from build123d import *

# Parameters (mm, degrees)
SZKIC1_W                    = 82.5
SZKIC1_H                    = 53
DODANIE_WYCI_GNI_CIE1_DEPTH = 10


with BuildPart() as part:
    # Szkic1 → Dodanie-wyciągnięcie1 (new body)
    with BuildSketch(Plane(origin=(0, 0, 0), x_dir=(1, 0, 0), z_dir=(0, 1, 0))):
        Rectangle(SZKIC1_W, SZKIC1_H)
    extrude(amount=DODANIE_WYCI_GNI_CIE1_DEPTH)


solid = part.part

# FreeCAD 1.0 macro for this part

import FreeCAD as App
import Part
import Sketcher
from FreeCAD import Vector

doc = App.newDocument("Part")
params = doc.addObject("Spreadsheet::Sheet", "Params")
for row, (alias, value) in enumerate([
    ("sketch1_height", "53 mm"),
    ("sketch1_width", "82.5 mm"),
    ("pad1_length", "10 mm"),
], start=1):
    params.set(f"A{row}", alias)
    params.set(f"B{row}", "=" + value)
    params.setAlias(f"B{row}", alias)

body = doc.addObject("PartDesign::Body", "Body")

# Sketch on XZ plane
sketch1 = doc.addObject("Sketcher::SketchObject", "Sketch")
body.addObject(sketch1)
sketch1.AttachmentSupport = (doc.XZ_Plane, [""])
sketch1.MapMode = "FlatFace"
sketch1.addGeometry([
    Part.LineSegment(Vector(-41.25, -26.5, 0), Vector(-41.25, 26.5, 0)),
    Part.LineSegment(Vector(-41.25, 26.5, 0), Vector(41.25, 26.5, 0)),
    Part.LineSegment(Vector(41.25, 26.5, 0), Vector(41.25, -26.5, 0)),
    Part.LineSegment(Vector(41.25, -26.5, 0), Vector(-41.25, -26.5, 0)),
], False)
sketch1.addConstraint([
    Sketcher.Constraint("Coincident", 0, 2, 1, 1),
    Sketcher.Constraint("Coincident", 1, 2, 2, 1),
    Sketcher.Constraint("Coincident", 2, 2, 3, 1),
    Sketcher.Constraint("Coincident", 3, 2, 0, 1),
    Sketcher.Constraint("Vertical", 0),
    Sketcher.Constraint("Horizontal", 1),
    Sketcher.Constraint("Vertical", 2),
    Sketcher.Constraint("Horizontal", 3),
    Sketcher.Constraint("Symmetric", 0, 2, 2, 2, -1, 1),
    Sketcher.Constraint("DistanceY", 0, 1, 0, 2, 53.0),
    Sketcher.Constraint("DistanceX", 1, 1, 1, 2, 82.5),
])
sketch1.setExpression("Constraints[9]", "Params.sketch1_height")
sketch1.setExpression("Constraints[10]", "Params.sketch1_width")
pad1 = doc.addObject("PartDesign::Pad", "Pad")
body.addObject(pad1)
pad1.Profile = sketch1
pad1.setExpression("Length", "Params.pad1_length")
pad1.Reversed = True

doc.recompute()
